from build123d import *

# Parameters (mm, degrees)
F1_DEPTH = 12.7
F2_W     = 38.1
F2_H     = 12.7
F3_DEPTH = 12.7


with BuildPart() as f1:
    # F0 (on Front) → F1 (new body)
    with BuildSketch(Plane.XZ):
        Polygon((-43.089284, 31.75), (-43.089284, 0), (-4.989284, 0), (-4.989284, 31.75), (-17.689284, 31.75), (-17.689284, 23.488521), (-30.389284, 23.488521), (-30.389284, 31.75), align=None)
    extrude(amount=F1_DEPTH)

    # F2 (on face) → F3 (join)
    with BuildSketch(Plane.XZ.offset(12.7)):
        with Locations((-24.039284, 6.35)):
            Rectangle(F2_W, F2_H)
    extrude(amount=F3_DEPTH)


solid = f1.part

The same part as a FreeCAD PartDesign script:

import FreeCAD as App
import Part
import Sketcher
from FreeCAD import Vector
Q = App.Units.Quantity

doc = App.newDocument("Part")
body = doc.addObject("PartDesign::Body", "Body")

sketch1 = body.newObject("Sketcher::SketchObject", "Sketch")
sketch1.AttachmentSupport = (doc.getObject("XZ_Plane"), [""])
sketch1.MapMode = "FlatFace"
sketch1.addGeometry(Part.LineSegment(Vector(-43, 32, 0), Vector(-43, 0, 0)), False)
sketch1.addGeometry(Part.LineSegment(Vector(-43, 0, 0), Vector(-5, 0, 0)), False)
sketch1.addGeometry(Part.LineSegment(Vector(-5, 0, 0), Vector(-5, 32, 0)), False)
sketch1.addGeometry(Part.LineSegment(Vector(-5, 32, 0), Vector(-18, 32, 0)), False)
sketch1.addGeometry(Part.LineSegment(Vector(-18, 32, 0), Vector(-18, 23, 0)), False)
sketch1.addGeometry(Part.LineSegment(Vector(-18, 23, 0), Vector(-30, 23, 0)), False)
sketch1.addGeometry(Part.LineSegment(Vector(-30, 23, 0), Vector(-30, 32, 0)), False)
sketch1.addGeometry(Part.LineSegment(Vector(-30, 32, 0), Vector(-43, 32, 0)), False)
sketch1.addConstraint(Sketcher.Constraint("Coincident", 0, 2, 1, 1))
sketch1.addConstraint(Sketcher.Constraint("Coincident", 1, 2, 2, 1))
sketch1.addConstraint(Sketcher.Constraint("Coincident", 2, 2, 3, 1))
sketch1.addConstraint(Sketcher.Constraint("Coincident", 3, 2, 4, 1))
sketch1.addConstraint(Sketcher.Constraint("Coincident", 4, 2, 5, 1))
sketch1.addConstraint(Sketcher.Constraint("Coincident", 5, 2, 6, 1))
sketch1.addConstraint(Sketcher.Constraint("Coincident", 6, 2, 7, 1))
sketch1.addConstraint(Sketcher.Constraint("Coincident", 7, 2, 0, 1))
sketch1.addConstraint(Sketcher.Constraint("Vertical", 0))
sketch1.addConstraint(Sketcher.Constraint("Horizontal", 1))
sketch1.addConstraint(Sketcher.Constraint("Vertical", 2))
sketch1.addConstraint(Sketcher.Constraint("Horizontal", 3))
sketch1.addConstraint(Sketcher.Constraint("Vertical", 4))
sketch1.addConstraint(Sketcher.Constraint("Horizontal", 5))
sketch1.addConstraint(Sketcher.Constraint("Vertical", 6))
sketch1.addConstraint(Sketcher.Constraint("Horizontal", 7))
sketch1.addConstraint(Sketcher.Constraint("PointOnObject", 0, 2, -1))
sketch1.addConstraint(Sketcher.Constraint("Horizontal", 3, 2, 6, 2))
sketch1.addConstraint(Sketcher.Constraint("Equal", 3, 5))
sketch1.addConstraint(Sketcher.Constraint("Equal", 5, 7))
sketch1.addConstraint(Sketcher.Constraint("DistanceX", 1, 1, 1, 2, Q("1.5 in")))
sketch1.addConstraint(Sketcher.Constraint("DistanceY", 0, 2, 0, 1, Q("1.25 in")))
sketch1.addConstraint(Sketcher.Constraint("DistanceY", 4, 2, 4, 1, Q("8.261479 mm")))
sketch1.addConstraint(Sketcher.Constraint("DistanceX", 0, 2, -1, 1, Q("43.089284 mm")))
pad1 = body.newObject("PartDesign::Pad", "Pad")
pad1.Profile = sketch1
pad1.Length = Q("0.5 in")

sketch2 = body.newObject("Sketcher::SketchObject", "Sketch001")
sketch2.AttachmentSupport = (doc.getObject("XZ_Plane"), [""])
sketch2.MapMode = "FlatFace"
sketch2.AttachmentOffset = App.Placement(Vector(0, 0, 0.5 * 25.4), App.Rotation())
sketch2.addGeometry(Part.LineSegment(Vector(-43, 13, 0), Vector(-43, 0, 0)), False)
sketch2.addGeometry(Part.LineSegment(Vector(-43, 0, 0), Vector(-5, 0, 0)), False)
sketch2.addGeometry(Part.LineSegment(Vector(-5, 0, 0), Vector(-5, 13, 0)), False)
sketch2.addGeometry(Part.LineSegment(Vector(-5, 13, 0), Vector(-43, 13, 0)), False)
sketch2.addConstraint(Sketcher.Constraint("Coincident", 0, 2, 1, 1))
sketch2.addConstraint(Sketcher.Constraint("Coincident", 1, 2, 2, 1))
sketch2.addConstraint(Sketcher.Constraint("Coincident", 2, 2, 3, 1))
sketch2.addConstraint(Sketcher.Constraint("Coincident", 3, 2, 0, 1))
sketch2.addConstraint(Sketcher.Constraint("Vertical", 0))
sketch2.addConstraint(Sketcher.Constraint("Horizontal", 1))
sketch2.addConstraint(Sketcher.Constraint("Vertical", 2))
sketch2.addConstraint(Sketcher.Constraint("Horizontal", 3))
sketch2.addConstraint(Sketcher.Constraint("PointOnObject", 0, 2, -1))
sketch2.addConstraint(Sketcher.Constraint("DistanceX", 1, 1, 1, 2, Q("1.5 in")))
sketch2.addConstraint(Sketcher.Constraint("DistanceY", 0, 2, 0, 1, Q("0.5 in")))
sketch2.addConstraint(Sketcher.Constraint("DistanceX", 0, 2, -1, 1, Q("43.089284 mm")))
pad2 = body.newObject("PartDesign::Pad", "Pad001")
pad2.Profile = sketch2
pad2.Length = Q("0.5 in")

doc.recompute()
